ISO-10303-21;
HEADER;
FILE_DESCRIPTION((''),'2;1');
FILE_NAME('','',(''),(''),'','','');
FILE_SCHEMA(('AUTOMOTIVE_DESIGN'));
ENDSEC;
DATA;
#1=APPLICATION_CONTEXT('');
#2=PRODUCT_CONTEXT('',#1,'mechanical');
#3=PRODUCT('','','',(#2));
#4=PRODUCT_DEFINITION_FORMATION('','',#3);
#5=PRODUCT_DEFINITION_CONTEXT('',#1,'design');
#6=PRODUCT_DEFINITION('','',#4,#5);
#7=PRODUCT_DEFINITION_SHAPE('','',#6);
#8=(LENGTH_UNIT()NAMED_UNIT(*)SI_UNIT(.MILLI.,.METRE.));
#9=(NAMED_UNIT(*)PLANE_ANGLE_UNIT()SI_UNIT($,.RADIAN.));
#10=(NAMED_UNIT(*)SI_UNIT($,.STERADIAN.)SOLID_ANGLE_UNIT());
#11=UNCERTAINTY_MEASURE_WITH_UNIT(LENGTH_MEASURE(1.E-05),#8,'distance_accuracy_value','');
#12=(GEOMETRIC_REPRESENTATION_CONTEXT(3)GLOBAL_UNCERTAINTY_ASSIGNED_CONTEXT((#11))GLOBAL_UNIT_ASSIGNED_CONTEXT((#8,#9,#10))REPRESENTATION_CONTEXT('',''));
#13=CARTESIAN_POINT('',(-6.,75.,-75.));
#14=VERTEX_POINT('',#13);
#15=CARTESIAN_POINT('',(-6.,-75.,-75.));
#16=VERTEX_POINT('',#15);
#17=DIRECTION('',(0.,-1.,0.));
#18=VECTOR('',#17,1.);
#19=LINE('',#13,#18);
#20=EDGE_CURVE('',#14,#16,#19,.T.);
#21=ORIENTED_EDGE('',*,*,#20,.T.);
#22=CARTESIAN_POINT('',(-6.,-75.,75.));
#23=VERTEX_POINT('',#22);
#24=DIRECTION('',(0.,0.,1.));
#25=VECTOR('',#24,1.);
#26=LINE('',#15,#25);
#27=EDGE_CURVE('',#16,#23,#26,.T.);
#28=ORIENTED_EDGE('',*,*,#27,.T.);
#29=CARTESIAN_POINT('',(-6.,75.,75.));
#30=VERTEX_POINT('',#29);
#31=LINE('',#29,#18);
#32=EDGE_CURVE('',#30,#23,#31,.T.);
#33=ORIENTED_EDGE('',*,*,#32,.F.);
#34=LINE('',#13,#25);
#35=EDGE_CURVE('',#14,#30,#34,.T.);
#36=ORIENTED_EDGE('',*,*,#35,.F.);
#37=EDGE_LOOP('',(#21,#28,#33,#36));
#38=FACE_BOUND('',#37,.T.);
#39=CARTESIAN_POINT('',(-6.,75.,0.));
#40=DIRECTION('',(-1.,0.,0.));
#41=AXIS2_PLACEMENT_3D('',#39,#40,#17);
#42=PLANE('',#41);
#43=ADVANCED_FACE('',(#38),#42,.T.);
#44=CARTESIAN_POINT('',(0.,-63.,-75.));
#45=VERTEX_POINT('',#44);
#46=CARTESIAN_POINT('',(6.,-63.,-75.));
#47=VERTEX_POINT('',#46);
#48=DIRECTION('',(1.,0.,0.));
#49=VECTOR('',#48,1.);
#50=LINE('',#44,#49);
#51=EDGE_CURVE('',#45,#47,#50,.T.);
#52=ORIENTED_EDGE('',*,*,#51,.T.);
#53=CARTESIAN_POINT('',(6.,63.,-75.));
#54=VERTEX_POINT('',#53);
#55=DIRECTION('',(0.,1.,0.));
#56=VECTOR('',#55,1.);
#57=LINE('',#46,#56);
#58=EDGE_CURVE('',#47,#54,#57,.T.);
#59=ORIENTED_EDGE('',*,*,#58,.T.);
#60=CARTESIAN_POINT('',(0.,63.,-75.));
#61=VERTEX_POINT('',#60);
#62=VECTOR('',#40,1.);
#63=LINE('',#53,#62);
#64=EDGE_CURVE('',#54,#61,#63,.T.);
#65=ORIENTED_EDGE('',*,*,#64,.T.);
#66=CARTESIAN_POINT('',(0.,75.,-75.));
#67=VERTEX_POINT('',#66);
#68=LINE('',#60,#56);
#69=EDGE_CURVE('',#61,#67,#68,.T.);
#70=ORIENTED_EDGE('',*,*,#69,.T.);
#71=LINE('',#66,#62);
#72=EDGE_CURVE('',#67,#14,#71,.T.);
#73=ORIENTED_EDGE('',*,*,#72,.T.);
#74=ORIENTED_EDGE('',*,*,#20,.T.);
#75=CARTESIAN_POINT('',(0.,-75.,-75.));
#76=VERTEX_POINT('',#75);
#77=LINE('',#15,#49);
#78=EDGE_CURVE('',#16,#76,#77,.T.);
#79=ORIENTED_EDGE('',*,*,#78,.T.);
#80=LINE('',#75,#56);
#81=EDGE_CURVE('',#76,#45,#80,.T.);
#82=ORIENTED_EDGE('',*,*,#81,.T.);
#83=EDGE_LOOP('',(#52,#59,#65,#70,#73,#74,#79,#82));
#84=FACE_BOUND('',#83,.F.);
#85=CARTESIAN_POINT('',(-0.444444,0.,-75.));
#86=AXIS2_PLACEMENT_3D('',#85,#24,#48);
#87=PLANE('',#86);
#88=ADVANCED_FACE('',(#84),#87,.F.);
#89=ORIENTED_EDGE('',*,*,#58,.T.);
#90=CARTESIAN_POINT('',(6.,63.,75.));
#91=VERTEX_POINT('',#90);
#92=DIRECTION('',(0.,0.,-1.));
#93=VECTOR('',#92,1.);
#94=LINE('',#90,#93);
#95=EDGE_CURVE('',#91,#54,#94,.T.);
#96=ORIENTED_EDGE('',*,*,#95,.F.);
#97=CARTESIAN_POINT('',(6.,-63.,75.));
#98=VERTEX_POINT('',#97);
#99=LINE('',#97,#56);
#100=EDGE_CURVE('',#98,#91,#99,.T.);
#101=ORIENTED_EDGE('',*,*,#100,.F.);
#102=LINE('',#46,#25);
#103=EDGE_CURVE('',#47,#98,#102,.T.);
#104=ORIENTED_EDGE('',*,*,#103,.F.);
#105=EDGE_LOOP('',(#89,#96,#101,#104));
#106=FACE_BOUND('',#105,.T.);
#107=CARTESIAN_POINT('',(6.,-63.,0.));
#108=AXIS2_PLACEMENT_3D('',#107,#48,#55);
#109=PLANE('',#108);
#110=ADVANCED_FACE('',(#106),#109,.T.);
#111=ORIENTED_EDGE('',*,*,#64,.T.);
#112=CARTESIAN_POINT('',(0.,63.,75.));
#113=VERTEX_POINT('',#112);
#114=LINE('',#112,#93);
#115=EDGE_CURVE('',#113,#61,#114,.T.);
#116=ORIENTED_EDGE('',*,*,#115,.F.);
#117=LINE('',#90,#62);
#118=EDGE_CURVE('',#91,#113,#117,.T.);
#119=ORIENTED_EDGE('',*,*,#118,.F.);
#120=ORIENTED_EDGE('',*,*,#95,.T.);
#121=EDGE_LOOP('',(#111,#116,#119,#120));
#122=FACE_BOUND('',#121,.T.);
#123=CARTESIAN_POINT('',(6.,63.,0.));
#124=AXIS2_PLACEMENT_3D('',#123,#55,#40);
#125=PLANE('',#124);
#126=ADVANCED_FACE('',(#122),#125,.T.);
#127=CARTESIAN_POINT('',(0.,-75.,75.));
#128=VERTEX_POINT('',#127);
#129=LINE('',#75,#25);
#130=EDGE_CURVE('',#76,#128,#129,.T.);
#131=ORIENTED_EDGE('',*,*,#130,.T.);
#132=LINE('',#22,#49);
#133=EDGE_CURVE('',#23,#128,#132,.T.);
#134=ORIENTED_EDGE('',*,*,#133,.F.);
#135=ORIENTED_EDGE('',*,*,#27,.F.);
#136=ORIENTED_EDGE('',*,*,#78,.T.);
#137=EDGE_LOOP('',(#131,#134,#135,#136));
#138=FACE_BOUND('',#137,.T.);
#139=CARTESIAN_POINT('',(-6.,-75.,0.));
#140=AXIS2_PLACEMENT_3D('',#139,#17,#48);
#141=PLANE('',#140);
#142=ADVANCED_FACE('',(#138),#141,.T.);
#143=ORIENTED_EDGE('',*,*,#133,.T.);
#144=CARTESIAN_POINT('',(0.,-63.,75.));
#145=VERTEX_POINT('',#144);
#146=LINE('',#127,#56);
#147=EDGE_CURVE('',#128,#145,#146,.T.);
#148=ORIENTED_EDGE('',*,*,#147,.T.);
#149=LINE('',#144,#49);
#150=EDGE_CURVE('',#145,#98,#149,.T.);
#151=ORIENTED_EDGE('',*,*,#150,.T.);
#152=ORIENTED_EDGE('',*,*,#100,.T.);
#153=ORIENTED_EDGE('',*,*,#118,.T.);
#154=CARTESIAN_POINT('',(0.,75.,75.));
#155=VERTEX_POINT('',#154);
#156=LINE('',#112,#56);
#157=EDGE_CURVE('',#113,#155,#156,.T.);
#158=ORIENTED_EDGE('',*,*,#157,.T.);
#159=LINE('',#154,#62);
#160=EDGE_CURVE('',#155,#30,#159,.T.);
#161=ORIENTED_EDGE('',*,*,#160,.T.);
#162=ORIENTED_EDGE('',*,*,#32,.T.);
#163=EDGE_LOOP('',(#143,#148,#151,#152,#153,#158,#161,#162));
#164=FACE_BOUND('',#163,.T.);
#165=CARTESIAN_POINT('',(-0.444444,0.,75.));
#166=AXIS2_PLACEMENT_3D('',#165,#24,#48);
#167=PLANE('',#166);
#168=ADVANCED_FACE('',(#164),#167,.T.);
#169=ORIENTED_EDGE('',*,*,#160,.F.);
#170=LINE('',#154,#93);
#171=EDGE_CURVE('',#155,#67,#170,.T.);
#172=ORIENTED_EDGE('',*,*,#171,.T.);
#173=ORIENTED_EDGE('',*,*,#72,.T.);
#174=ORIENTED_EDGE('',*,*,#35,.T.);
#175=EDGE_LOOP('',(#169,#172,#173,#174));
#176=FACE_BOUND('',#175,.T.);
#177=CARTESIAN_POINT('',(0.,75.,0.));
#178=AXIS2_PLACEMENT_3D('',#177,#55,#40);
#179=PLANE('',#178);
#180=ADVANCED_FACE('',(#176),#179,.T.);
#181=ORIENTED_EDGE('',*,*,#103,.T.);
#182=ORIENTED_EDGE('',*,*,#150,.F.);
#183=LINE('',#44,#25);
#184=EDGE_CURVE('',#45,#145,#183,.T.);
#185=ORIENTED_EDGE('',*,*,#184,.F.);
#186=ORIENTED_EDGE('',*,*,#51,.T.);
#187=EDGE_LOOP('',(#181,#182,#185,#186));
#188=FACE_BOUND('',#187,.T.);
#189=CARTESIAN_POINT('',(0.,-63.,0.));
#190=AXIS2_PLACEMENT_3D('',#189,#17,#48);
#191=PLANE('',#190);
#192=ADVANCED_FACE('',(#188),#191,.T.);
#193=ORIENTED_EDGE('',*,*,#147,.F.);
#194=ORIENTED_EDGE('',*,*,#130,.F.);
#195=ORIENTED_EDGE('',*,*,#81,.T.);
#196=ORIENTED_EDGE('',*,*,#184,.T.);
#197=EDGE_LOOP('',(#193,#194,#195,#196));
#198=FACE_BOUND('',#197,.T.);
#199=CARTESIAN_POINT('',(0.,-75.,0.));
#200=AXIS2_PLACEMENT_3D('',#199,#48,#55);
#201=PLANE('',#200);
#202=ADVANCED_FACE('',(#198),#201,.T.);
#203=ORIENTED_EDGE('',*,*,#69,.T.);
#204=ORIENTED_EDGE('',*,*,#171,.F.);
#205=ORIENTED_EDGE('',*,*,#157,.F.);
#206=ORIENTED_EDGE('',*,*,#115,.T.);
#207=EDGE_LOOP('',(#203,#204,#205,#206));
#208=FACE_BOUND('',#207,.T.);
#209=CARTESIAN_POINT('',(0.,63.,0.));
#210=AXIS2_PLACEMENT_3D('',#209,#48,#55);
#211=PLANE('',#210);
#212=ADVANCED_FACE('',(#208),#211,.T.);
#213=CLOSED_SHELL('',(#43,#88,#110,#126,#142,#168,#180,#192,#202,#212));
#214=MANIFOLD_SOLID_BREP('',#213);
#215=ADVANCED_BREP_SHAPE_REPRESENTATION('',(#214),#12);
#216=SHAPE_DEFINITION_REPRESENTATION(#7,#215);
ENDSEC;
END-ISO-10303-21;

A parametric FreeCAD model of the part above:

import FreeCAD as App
import Part
import Sketcher

V = App.Vector

doc = App.newDocument("Part")
body = doc.addObject("PartDesign::Body", "Body")

sketch1 = body.newObject("Sketcher::SketchObject", "Sketch")
sketch1.AttachmentSupport = (doc.getObject("XY_Plane"), [""])
sketch1.MapMode = "FlatFace"
sketch1.addGeometry([
    Part.LineSegment(V(0, 75, 0), V(-6, 75, 0)),
    Part.LineSegment(V(-6, 75, 0), V(-6, -75, 0)),
    Part.LineSegment(V(-6, -75, 0), V(0, -75, 0)),
    Part.LineSegment(V(0, -75, 0), V(0, -63, 0)),
    Part.LineSegment(V(0, -63, 0), V(6, -63, 0)),
    Part.LineSegment(V(6, -63, 0), V(6, 63, 0)),
    Part.LineSegment(V(6, 63, 0), V(0, 63, 0)),
    Part.LineSegment(V(0, 63, 0), V(0, 75, 0)),
], False)
sketch1.addConstraint([
    Sketcher.Constraint("Coincident", 0, 2, 1, 1),
    Sketcher.Constraint("Coincident", 1, 2, 2, 1),
    Sketcher.Constraint("Coincident", 2, 2, 3, 1),
    Sketcher.Constraint("Coincident", 3, 2, 4, 1),
    Sketcher.Constraint("Coincident", 4, 2, 5, 1),
    Sketcher.Constraint("Coincident", 5, 2, 6, 1),
    Sketcher.Constraint("Coincident", 6, 2, 7, 1),
    Sketcher.Constraint("Coincident", 7, 2, 0, 1),
    Sketcher.Constraint("Horizontal", 0),
    Sketcher.Constraint("Vertical", 1),
    Sketcher.Constraint("Horizontal", 2),
    Sketcher.Constraint("Vertical", 3),
    Sketcher.Constraint("Horizontal", 4),
    Sketcher.Constraint("Vertical", 5),
    Sketcher.Constraint("Horizontal", 6),
    Sketcher.Constraint("Vertical", 7),
    Sketcher.Constraint("Symmetric", 3, 2, 6, 2, -1, 1),
    Sketcher.Constraint("Symmetric", 2, 2, 7, 2, -1),
    Sketcher.Constraint("Equal", 2, 4),
    Sketcher.Constraint("DistanceX", 0, 2, 0, 1, 6.0),
    Sketcher.Constraint("DistanceY", 1, 2, 1, 1, 150.0),
    Sketcher.Constraint("DistanceY", 3, 1, 3, 2, 12.0),
])
pad1 = body.newObject("PartDesign::Pad", "Pad")
pad1.Profile = sketch1
pad1.Length = 150
pad1.Midplane = True

doc.recompute()
